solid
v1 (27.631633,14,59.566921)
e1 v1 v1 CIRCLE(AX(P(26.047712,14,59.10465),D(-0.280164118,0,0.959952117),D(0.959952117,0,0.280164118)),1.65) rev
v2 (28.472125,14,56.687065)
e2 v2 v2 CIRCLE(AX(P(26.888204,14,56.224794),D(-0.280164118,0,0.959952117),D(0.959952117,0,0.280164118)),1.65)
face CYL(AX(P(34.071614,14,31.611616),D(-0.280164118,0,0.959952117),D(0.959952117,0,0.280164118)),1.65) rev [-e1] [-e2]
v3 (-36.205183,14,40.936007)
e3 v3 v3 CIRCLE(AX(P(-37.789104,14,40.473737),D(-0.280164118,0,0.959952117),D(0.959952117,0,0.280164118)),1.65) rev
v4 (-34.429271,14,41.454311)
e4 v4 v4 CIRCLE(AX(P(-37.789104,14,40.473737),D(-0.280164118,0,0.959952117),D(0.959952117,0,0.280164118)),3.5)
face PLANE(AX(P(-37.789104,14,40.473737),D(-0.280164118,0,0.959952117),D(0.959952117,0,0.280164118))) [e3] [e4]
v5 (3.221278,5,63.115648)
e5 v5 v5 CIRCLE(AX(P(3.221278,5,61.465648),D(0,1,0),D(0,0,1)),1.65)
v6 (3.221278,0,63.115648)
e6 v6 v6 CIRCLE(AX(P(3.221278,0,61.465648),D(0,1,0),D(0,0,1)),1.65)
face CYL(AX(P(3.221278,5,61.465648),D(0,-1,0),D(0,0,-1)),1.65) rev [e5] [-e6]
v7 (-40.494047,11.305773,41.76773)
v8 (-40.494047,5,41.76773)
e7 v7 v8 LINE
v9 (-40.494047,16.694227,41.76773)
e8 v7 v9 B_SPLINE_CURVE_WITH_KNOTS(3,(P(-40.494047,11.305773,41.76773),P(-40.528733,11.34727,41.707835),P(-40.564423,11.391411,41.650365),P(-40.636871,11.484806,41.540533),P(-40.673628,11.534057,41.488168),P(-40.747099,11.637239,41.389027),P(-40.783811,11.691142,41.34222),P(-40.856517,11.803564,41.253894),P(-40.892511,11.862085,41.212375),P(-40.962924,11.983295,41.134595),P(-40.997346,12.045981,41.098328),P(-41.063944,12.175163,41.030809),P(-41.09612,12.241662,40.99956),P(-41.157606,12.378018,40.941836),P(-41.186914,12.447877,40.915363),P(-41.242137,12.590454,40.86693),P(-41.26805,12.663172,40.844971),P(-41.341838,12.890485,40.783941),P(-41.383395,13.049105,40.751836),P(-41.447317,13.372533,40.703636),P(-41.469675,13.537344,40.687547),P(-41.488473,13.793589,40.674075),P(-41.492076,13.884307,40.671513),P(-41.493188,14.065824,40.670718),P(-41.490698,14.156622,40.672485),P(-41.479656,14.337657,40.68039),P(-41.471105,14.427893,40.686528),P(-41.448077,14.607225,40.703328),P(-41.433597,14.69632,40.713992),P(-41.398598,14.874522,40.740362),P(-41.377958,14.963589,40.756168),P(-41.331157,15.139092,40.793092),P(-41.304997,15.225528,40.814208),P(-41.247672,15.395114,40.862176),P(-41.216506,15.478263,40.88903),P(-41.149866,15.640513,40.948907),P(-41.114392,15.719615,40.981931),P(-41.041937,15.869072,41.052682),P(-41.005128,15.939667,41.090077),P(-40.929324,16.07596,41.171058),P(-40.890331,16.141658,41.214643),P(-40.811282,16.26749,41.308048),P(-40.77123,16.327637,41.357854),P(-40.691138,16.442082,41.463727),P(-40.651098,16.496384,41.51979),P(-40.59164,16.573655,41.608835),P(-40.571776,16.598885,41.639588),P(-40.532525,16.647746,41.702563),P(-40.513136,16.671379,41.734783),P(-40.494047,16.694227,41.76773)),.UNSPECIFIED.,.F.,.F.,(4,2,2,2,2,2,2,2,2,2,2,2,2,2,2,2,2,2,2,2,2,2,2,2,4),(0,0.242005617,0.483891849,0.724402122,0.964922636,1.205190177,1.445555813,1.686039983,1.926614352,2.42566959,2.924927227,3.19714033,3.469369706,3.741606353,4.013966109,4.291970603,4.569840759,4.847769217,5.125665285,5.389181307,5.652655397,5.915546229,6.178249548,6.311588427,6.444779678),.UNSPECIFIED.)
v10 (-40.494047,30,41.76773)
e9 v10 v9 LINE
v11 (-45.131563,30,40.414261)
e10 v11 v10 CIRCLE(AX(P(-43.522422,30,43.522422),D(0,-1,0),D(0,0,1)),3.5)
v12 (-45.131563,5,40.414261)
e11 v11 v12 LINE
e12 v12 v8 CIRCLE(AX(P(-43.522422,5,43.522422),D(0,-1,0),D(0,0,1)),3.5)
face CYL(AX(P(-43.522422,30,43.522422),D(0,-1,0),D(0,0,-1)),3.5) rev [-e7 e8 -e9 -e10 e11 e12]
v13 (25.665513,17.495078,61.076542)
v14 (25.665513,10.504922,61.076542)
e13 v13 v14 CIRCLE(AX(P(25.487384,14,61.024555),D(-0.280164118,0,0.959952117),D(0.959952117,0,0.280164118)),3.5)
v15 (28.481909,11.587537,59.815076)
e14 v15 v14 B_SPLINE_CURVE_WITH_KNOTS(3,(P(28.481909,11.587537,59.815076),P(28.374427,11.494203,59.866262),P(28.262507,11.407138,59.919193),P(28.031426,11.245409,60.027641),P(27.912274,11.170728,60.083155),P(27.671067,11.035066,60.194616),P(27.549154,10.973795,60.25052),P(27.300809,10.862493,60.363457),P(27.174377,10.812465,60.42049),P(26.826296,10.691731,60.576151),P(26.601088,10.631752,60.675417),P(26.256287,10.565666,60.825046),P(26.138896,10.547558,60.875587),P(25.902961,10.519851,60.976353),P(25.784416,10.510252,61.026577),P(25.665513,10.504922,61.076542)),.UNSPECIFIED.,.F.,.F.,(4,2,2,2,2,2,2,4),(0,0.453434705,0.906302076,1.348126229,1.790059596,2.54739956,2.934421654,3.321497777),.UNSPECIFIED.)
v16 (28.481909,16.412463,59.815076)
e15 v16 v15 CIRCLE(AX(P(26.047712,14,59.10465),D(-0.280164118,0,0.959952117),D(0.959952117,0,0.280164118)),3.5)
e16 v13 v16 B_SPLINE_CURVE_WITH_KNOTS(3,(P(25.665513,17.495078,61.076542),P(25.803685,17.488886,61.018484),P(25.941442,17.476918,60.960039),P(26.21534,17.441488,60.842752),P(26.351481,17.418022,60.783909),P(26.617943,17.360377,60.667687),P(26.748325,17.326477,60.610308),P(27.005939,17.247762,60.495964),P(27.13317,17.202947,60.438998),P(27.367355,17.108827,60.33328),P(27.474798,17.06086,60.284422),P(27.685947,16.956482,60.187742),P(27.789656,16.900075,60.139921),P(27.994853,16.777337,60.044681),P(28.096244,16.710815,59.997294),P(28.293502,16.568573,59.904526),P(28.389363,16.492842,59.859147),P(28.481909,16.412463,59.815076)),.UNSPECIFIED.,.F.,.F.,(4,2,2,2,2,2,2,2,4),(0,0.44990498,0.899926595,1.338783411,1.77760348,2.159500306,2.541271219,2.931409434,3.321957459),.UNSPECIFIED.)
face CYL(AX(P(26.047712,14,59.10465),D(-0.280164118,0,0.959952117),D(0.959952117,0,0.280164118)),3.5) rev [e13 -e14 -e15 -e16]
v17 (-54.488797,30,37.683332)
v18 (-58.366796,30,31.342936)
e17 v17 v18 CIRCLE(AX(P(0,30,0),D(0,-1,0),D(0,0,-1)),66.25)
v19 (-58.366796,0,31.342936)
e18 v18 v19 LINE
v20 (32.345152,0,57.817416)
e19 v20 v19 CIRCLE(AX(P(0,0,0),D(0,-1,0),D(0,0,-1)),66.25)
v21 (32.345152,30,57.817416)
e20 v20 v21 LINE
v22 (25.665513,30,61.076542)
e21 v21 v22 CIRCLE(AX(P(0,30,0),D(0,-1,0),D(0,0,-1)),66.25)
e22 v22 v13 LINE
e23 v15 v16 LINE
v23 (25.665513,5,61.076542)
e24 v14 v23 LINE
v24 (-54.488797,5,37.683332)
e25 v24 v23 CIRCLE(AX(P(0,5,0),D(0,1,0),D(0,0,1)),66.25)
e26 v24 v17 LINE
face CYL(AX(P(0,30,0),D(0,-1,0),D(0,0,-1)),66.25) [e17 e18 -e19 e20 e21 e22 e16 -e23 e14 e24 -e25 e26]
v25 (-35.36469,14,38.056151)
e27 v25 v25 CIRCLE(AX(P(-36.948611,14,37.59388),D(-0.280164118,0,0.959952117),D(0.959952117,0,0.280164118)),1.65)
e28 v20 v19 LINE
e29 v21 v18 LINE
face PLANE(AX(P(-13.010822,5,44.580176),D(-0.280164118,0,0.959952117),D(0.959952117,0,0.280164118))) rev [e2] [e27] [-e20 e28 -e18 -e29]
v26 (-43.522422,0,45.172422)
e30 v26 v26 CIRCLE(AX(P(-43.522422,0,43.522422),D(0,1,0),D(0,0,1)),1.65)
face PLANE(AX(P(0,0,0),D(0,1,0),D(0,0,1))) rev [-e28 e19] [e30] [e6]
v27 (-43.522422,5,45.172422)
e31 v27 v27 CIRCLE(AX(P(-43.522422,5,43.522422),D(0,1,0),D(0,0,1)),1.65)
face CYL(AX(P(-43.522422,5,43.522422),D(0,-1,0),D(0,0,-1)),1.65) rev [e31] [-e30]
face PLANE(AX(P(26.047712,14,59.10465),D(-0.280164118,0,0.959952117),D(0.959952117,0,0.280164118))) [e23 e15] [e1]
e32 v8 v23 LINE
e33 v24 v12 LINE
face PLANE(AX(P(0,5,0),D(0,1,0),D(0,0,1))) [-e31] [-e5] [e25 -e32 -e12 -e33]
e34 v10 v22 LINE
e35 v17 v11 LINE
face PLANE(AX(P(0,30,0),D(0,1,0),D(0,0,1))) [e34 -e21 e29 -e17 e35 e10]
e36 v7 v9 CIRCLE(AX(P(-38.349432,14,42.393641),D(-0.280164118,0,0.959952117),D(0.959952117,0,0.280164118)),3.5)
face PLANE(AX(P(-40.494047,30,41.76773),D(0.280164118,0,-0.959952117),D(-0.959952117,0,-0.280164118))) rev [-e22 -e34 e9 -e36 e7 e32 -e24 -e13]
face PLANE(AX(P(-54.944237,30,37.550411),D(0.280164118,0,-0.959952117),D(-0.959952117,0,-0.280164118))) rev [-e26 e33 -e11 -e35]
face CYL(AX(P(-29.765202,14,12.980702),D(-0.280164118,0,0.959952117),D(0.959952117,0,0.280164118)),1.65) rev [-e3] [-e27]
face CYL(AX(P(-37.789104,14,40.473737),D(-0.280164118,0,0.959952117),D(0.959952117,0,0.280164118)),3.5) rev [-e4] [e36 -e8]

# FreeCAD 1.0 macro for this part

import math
import FreeCAD as App
import Part
import Sketcher
Q = App.Units.Quantity

doc = App.newDocument("Part")
body = doc.addObject("PartDesign::Body", "Body")

# Sketch on XZ plane
sketch1 = body.newObject("Sketcher::SketchObject", "Sketch")
sketch1.AttachmentSupport = (doc.getObject("XZ_Plane"), [""])
sketch1.MapMode = "FlatFace"
sketch1.addGeometry(Part.ArcOfCircle(Part.Circle(App.Vector(0, 0, 0), App.Vector(0, 0, 1), 66.5), math.radians(61), math.radians(152)), False)
sketch1.addGeometry(Part.LineSegment(App.Vector(32.7, 57.9, 0), App.Vector(-58.8, 31.2, 0)), False)
sketch1.addGeometry(Part.Circle(App.Vector(3.2, 61.5, 0), App.Vector(0, 0, 1), 1.6), False)
sketch1.addGeometry(Part.Circle(App.Vector(-43.5, 43.5, 0), App.Vector(0, 0, 1), 1.6), False)
sketch1.addConstraint(Sketcher.Constraint("Coincident", 0, 1, 1, 1))
sketch1.addConstraint(Sketcher.Constraint("Coincident", 1, 2, 0, 2))
sketch1.addConstraint(Sketcher.Constraint("Coincident", 0, 3, -1, 1))
sketch1.addConstraint(Sketcher.Constraint("Equal", 2, 3))
sketch1.addConstraint(Sketcher.Constraint("Diameter", 2, 3.3))
sketch1.addConstraint(Sketcher.Constraint("Radius", 0, 66.55))
sketch1.addConstraint(Sketcher.Constraint("Angle", 1, Q("-163.73 deg")))
sketch1.addConstraint(Sketcher.Constraint("DistanceX", 3, 3, 2, 3, 46.7437))
sketch1.addConstraint(Sketcher.Constraint("DistanceX", -1, 1, 2, 3, 3.221278))
sketch1.addConstraint(Sketcher.Constraint("DistanceY", -1, 1, 1, 2, 31.225341))
sketch1.addConstraint(Sketcher.Constraint("DistanceY", 3, 3, 0, 1, 14.41259))
sketch1.addConstraint(Sketcher.Constraint("DistanceY", -1, 1, 2, 3, 61.465648))
pad1 = body.newObject("PartDesign::Pad", "Pad")
pad1.Profile = sketch1
pad1.Length = 5
pad1.Reversed = True

# Sketch on XZ plane
sketch2 = body.newObject("Sketcher::SketchObject", "Sketch001")
sketch2.AttachmentSupport = (doc.getObject("XZ_Plane"), [""])
sketch2.MapMode = "FlatFace"
sketch2.AttachmentOffset = App.Placement(App.Vector(0, 0, -5), App.Rotation())
sketch2.addGeometry(Part.LineSegment(App.Vector(32.7, 57.9, 0), App.Vector(-58.8, 31.2, 0)), False)
sketch2.addGeometry(Part.ArcOfCircle(Part.Circle(App.Vector(0, 0, 0), App.Vector(0, 0, 1), 66.5), math.radians(145.65), math.radians(152.02)), False)
sketch2.addGeometry(Part.LineSegment(App.Vector(-54.9, 37.6, 0), App.Vector(-45.1, 40.4, 0)), False)
sketch2.addGeometry(Part.ArcOfCircle(Part.Circle(App.Vector(-43.5, 43.5, 0), App.Vector(0, 0, 1), 3.5), math.radians(-117), math.radians(-30)), False)
sketch2.addGeometry(Part.LineSegment(App.Vector(-40.5, 41.8, 0), App.Vector(26.1, 61.2, 0)), False)
sketch2.addGeometry(Part.ArcOfCircle(Part.Circle(App.Vector(0, 0, 0), App.Vector(0, 0, 1), 66.6), math.radians(60.52), math.radians(66.89)), False)
sketch2.addConstraint(Sketcher.Constraint("Coincident", 0, 2, 1, 2))
sketch2.addConstraint(Sketcher.Constraint("Coincident", 1, 1, 2, 1))
sketch2.addConstraint(Sketcher.Constraint("Coincident", 2, 2, 3, 1))
sketch2.addConstraint(Sketcher.Constraint("Coincident", 3, 2, 4, 1))
sketch2.addConstraint(Sketcher.Constraint("Coincident", 4, 2, 5, 2))
sketch2.addConstraint(Sketcher.Constraint("Coincident", 5, 1, 0, 1))
sketch2.addConstraint(Sketcher.Constraint("Coincident", 1, 3, -1, 1))
sketch2.addConstraint(Sketcher.Constraint("Coincident", 5, 3, -1, 1))
sketch2.addConstraint(Sketcher.Constraint("Equal", 1, 5))
sketch2.addConstraint(Sketcher.Constraint("Parallel", 0, 2))
sketch2.addConstraint(Sketcher.Constraint("Parallel", 2, 4))
sketch2.addConstraint(Sketcher.Constraint("Radius", 3, 3.5))
sketch2.addConstraint(Sketcher.Constraint("Radius", 1, 66.55))
sketch2.addConstraint(Sketcher.Constraint("Angle", 0, Q("-163.73 deg")))
sketch2.addConstraint(Sketcher.Constraint("DistanceX", 3, 2, 4, 2, 66.615))
sketch2.addConstraint(Sketcher.Constraint("DistanceY", 2, 2, 4, 2, 20.795202))
sketch2.addConstraint(Sketcher.Constraint("DistanceY", -1, 1, 0, 2, 31.225341))
sketch2.addConstraint(Sketcher.Constraint("DistanceY", -1, 1, 1, 1, 37.550411))
sketch2.addConstraint(Sketcher.Constraint("DistanceY", -1, 1, 2, 2, 40.414261))
pad2 = body.newObject("PartDesign::Pad", "Pad001")
pad2.Profile = sketch2
pad2.Length = 25
pad2.Reversed = True

# Sketch on an angled plane
sketch3 = body.newObject("Sketcher::SketchObject", "Sketch002")
sketch3.Placement = App.Placement(App.Vector(-14.411642, 0, 49.379937), App.Rotation(App.Vector(0.959952117, 0, 0.280164118), App.Vector(0, 1, 0), App.Vector(-0.280164118, 0, 0.959952117), "ZXY"))
sketch3.addGeometry(Part.Circle(App.Vector(41.6, 14, 0), App.Vector(0, 0, 1), 1.6), False)
sketch3.addGeometry(Part.Circle(App.Vector(-24.9, 14, 0), App.Vector(0, 0, 1), 1.6), False)
sketch3.addConstraint(Sketcher.Constraint("Equal", 0, 1))
sketch3.addConstraint(Sketcher.Constraint("Horizontal", 0, 3, 1, 3))
sketch3.addConstraint(Sketcher.Constraint("Diameter", 0, 3.3))
sketch3.addConstraint(Sketcher.Constraint("DistanceY", -1, 1, 0, 3, 14.0))
sketch3.addConstraint(Sketcher.Constraint("DistanceX", 1, 3, 0, 3, 66.5))
sketch3.addConstraint(Sketcher.Constraint("DistanceX", -1, 1, 0, 3, 41.563559))
pocket1 = body.newObject("PartDesign::Pocket", "Pocket")
pocket1.Profile = sketch3
pocket1.Type = "ThroughAll"

# Sketch on an angled plane
sketch4 = body.newObject("Sketcher::SketchObject", "Sketch003")
sketch4.Placement = App.Placement(App.Vector(-14.411642, 0, 49.379937), App.Rotation(App.Vector(0.959952117, 0, 0.280164118), App.Vector(0, 1, 0), App.Vector(-0.280164118, 0, 0.959952117), "ZXY"))
sketch4.addGeometry(Part.Circle(App.Vector(41.6, 14, 0), App.Vector(0, 0, 1), 3.5), False)
sketch4.addGeometry(Part.Circle(App.Vector(-24.9, 14, 0), App.Vector(0, 0, 1), 3.5), False)
sketch4.addConstraint(Sketcher.Constraint("Equal", 0, 1))
sketch4.addConstraint(Sketcher.Constraint("Horizontal", 0, 3, 1, 3))
sketch4.addConstraint(Sketcher.Constraint("Diameter", 0, 7.0))
sketch4.addConstraint(Sketcher.Constraint("DistanceY", -1, 1, 0, 3, 14.0))
sketch4.addConstraint(Sketcher.Constraint("DistanceX", 1, 3, 0, 3, 66.5))
sketch4.addConstraint(Sketcher.Constraint("DistanceX", -1, 1, 0, 3, 41.563559))
pocket2 = body.newObject("PartDesign::Pocket", "Pocket001")
pocket2.Profile = sketch4
pocket2.Length = 2

# Sketch on XZ plane
sketch5 = body.newObject("Sketcher::SketchObject", "Sketch004")
sketch5.AttachmentSupport = (doc.getObject("XZ_Plane"), [""])
sketch5.MapMode = "FlatFace"
sketch5.addGeometry(Part.Circle(App.Vector(0, 0, 0), App.Vector(0, 0, 1), 68), False)
sketch5.addGeometry(Part.Circle(App.Vector(0, 0, 0), App.Vector(0, 0, 1), 66), False)
sketch5.addConstraint(Sketcher.Constraint("Coincident", 0, 3, -1, 1))
sketch5.addConstraint(Sketcher.Constraint("Coincident", 1, 3, -1, 1))
sketch5.addConstraint(Sketcher.Constraint("Diameter", 0, 135.0))
sketch5.addConstraint(Sketcher.Constraint("Diameter", 1, 132.5))
pocket3 = body.newObject("PartDesign::Pocket", "Pocket002")
pocket3.Profile = sketch5
pocket3.Type = "ThroughAll"

doc.recompute()
